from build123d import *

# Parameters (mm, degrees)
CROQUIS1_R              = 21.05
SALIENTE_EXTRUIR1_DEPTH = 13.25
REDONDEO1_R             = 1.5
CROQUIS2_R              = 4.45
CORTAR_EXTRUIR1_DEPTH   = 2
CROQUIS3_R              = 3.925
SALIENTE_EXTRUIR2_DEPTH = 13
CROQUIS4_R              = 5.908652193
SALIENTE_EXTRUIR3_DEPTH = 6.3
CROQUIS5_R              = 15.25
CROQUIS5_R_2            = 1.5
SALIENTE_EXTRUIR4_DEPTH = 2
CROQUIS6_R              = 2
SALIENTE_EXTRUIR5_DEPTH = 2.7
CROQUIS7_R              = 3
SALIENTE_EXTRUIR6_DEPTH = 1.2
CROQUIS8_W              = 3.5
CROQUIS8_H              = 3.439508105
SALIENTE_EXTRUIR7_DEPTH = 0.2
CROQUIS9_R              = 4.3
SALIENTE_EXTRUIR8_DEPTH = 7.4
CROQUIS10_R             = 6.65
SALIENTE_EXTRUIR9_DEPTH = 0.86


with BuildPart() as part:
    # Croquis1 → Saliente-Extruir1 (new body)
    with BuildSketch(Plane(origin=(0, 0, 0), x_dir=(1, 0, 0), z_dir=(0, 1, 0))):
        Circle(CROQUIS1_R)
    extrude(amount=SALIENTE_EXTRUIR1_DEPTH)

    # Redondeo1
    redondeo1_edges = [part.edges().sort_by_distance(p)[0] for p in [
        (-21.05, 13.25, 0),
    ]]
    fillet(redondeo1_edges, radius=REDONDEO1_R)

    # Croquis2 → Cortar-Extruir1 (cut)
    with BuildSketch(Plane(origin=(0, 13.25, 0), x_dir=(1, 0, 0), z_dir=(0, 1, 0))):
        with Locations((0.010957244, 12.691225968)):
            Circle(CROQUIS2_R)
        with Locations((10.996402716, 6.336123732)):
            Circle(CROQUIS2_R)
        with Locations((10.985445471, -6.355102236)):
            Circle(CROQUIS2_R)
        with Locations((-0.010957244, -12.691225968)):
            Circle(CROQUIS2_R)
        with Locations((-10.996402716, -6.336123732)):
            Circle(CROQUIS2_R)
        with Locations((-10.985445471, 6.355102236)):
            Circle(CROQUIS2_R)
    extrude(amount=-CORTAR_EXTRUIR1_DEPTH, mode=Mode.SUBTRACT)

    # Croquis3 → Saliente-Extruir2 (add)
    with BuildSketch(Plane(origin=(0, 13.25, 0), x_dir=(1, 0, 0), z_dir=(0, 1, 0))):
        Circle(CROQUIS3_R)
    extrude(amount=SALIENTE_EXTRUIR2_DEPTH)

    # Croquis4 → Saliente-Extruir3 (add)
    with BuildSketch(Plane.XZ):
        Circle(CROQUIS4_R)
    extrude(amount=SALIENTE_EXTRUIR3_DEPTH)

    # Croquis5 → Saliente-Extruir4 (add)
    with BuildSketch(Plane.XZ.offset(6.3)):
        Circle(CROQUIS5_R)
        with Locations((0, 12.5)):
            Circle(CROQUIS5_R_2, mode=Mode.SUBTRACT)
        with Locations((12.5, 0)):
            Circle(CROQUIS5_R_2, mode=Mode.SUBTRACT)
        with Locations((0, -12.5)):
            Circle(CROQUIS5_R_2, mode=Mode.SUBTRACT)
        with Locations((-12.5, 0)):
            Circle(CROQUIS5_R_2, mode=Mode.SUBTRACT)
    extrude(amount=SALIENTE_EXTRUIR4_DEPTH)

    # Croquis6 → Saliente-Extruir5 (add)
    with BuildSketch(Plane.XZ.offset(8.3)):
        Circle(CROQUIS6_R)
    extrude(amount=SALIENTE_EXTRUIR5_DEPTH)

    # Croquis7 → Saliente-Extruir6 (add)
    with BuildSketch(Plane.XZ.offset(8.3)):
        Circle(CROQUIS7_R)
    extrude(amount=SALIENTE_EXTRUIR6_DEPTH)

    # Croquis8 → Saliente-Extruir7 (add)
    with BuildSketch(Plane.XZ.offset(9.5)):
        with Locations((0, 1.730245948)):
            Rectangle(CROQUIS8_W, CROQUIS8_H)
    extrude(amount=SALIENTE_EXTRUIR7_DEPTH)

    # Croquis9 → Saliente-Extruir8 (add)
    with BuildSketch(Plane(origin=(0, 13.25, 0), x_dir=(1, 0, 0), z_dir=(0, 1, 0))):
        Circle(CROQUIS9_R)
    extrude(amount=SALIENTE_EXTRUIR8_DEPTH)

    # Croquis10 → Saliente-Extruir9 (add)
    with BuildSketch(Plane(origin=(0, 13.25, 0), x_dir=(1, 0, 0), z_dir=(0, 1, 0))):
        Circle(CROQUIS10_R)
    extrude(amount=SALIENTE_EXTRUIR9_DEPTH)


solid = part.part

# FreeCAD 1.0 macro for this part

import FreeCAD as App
import Part
import Sketcher
Q = App.Units.Quantity


def edges_at(feature, points):
    """Names of the edges that pass closest to the given points."""
    edges = feature.Shape.Edges
    near = lambda p: min(range(len(edges)), key=lambda i: edges[i].distToShape(Part.Vertex(*p))[0])
    return sorted({f"Edge{near(p) + 1}" for p in points})


def add_polygon(sketch, points):
    """Adds a closed chain of lines whose ends are joined by coincident constraints."""
    first, n = sketch.GeometryCount, len(points)
    for a, b in zip(points, points[1:] + points[:1]):
        sketch.addGeometry(Part.LineSegment(App.Vector(*a, 0), App.Vector(*b, 0)), False)
    for i in range(n):
        sketch.addConstraint(Sketcher.Constraint("Coincident", first + i, 2, first + (i + 1) % n, 1))

doc = App.newDocument("Part")
body = doc.addObject("PartDesign::Body", "Body")

# Sketch on XZ plane
sketch1 = body.newObject("Sketcher::SketchObject", "Sketch")
sketch1.AttachmentSupport = (doc.getObject("XZ_Plane"), [""])
sketch1.MapMode = "FlatFace"
sketch1.addGeometry(Part.Circle(App.Vector(0, 0, 0), App.Vector(0, 0, 1), 21), False)
sketch1.addConstraint([
    Sketcher.Constraint("Coincident", 0, 3, -1, 1),
    Sketcher.Constraint("Diameter", 0, Q("42.1 mm")),
])
pad1 = body.newObject("PartDesign::Pad", "Pad")
pad1.Profile = sketch1
pad1.Length = 13.25
pad1.Reversed = True
doc.recompute()

fillet = body.newObject("PartDesign::Fillet", "Fillet")
fillet.Base = (pad1, edges_at(pad1, [(-21.05, 13.25, 0)]))
fillet.Radius = 1.5

# Sketch on XZ plane
sketch2 = body.newObject("Sketcher::SketchObject", "Sketch001")
sketch2.AttachmentSupport = (doc.getObject("XZ_Plane"), [""])
sketch2.MapMode = "FlatFace"
sketch2.AttachmentOffset = App.Placement(App.Vector(0, 0, -13.25), App.Rotation())
sketch2.addGeometry([
    Part.Circle(App.Vector(0, -12.7, 0), App.Vector(0, 0, 1), 4.5),  # 0
    Part.Circle(App.Vector(11, -6.3, 0), App.Vector(0, 0, 1), 4.5),  # 1
    Part.Circle(App.Vector(11, 6.4, 0), App.Vector(0, 0, 1), 4.5),  # 2
    Part.Circle(App.Vector(0, 12.7, 0), App.Vector(0, 0, 1), 4.5),  # 3
    Part.Circle(App.Vector(-11, 6.3, 0), App.Vector(0, 0, 1), 4.5),  # 4
    Part.Circle(App.Vector(-11, -6.4, 0), App.Vector(0, 0, 1), 4.5),  # 5
], False)
sketch2.addConstraint([
    Sketcher.Constraint("Equal", 0, 1),
    Sketcher.Constraint("Equal", 1, 2),
    Sketcher.Constraint("Equal", 2, 3),
    Sketcher.Constraint("Equal", 3, 4),
    Sketcher.Constraint("Equal", 4, 5),
    Sketcher.Constraint("Symmetric", 0, 3, 3, 3, -1, 1),
    Sketcher.Constraint("Symmetric", 1, 3, 4, 3, -1, 1),
    Sketcher.Constraint("Symmetric", 2, 3, 5, 3, -1, 1),
    Sketcher.Constraint("Diameter", 0, Q("8.9 mm")),
    Sketcher.Constraint("DistanceX", 0, 3, 2, 3, Q("10.974488 mm")),
    Sketcher.Constraint("DistanceY", 0, 3, 2, 3, Q("19.046328 mm")),
    Sketcher.Constraint("DistanceX", 3, 3, 1, 3, Q("11.00736 mm")),
    Sketcher.Constraint("DistanceY", 1, 3, 3, 3, Q("19.02735 mm")),
    Sketcher.Constraint("DistanceY", 0, 3, 3, 3, Q("25.382452 mm")),
    Sketcher.Constraint("DistanceX", 5, 3, 2, 3, Q("21.970891 mm")),
])
pocket1 = body.newObject("PartDesign::Pocket", "Pocket")
pocket1.Profile = sketch2
pocket1.Length = 2
pocket1.Reversed = True

# Sketch on XZ plane
sketch3 = body.newObject("Sketcher::SketchObject", "Sketch002")
sketch3.AttachmentSupport = (doc.getObject("XZ_Plane"), [""])
sketch3.MapMode = "FlatFace"
sketch3.AttachmentOffset = App.Placement(App.Vector(0, 0, -13.25), App.Rotation())
sketch3.addGeometry(Part.Circle(App.Vector(0, 0, 0), App.Vector(0, 0, 1), 3.9), False)
sketch3.addConstraint([
    Sketcher.Constraint("Coincident", 0, 3, -1, 1),
    Sketcher.Constraint("Diameter", 0, Q("7.85 mm")),
])
pad2 = body.newObject("PartDesign::Pad", "Pad001")
pad2.Profile = sketch3
pad2.Length = 13
pad2.Reversed = True

# Sketch on XZ plane
sketch4 = body.newObject("Sketcher::SketchObject", "Sketch003")
sketch4.AttachmentSupport = (doc.getObject("XZ_Plane"), [""])
sketch4.MapMode = "FlatFace"
sketch4.addGeometry(Part.Circle(App.Vector(0, 0, 0), App.Vector(0, 0, 1), 6), False)
sketch4.addConstraint([
    Sketcher.Constraint("Coincident", 0, 3, -1, 1),
    Sketcher.Constraint("Diameter", 0, Q("11.817304 mm")),
])
pad3 = body.newObject("PartDesign::Pad", "Pad002")
pad3.Profile = sketch4
pad3.Length = 6.3

# Sketch on XZ plane
sketch5 = body.newObject("Sketcher::SketchObject", "Sketch004")
sketch5.AttachmentSupport = (doc.getObject("XZ_Plane"), [""])
sketch5.MapMode = "FlatFace"
sketch5.AttachmentOffset = App.Placement(App.Vector(0, 0, 6.3), App.Rotation())
sketch5.addGeometry([
    Part.Circle(App.Vector(0, 0, 0), App.Vector(0, 0, 1), 15.2),  # 0
    Part.Circle(App.Vector(0, -12.5, 0), App.Vector(0, 0, 1), 1.5),  # 1
    Part.Circle(App.Vector(-12.5, 0, 0), App.Vector(0, 0, 1), 1.5),  # 2
    Part.Circle(App.Vector(12.5, 0, 0), App.Vector(0, 0, 1), 1.5),  # 3
    Part.Circle(App.Vector(0, 12.5, 0), App.Vector(0, 0, 1), 1.5),  # 4
], False)
sketch5.addConstraint([
    Sketcher.Constraint("Coincident", 0, 3, -1, 1),
    Sketcher.Constraint("Equal", 1, 2),
    Sketcher.Constraint("Equal", 2, 3),
    Sketcher.Constraint("Equal", 3, 4),
    Sketcher.Constraint("Symmetric", 2, 3, 3, 3, -1, 1),
    Sketcher.Constraint("Symmetric", 1, 3, 4, 3, -1, 1),
    Sketcher.Constraint("PointOnObject", 1, 3, -2),
    Sketcher.Constraint("PointOnObject", 2, 3, -1),
    Sketcher.Constraint("Diameter", 1, Q("3 mm")),
    Sketcher.Constraint("Diameter", 0, Q("30.5 mm")),
    Sketcher.Constraint("DistanceX", 2, 3, 3, 3, Q("25 mm")),
    Sketcher.Constraint("DistanceY", 1, 3, 4, 3, Q("25 mm")),
])
pad4 = body.newObject("PartDesign::Pad", "Pad003")
pad4.Profile = sketch5
pad4.Length = 2

# Sketch on XZ plane
sketch6 = body.newObject("Sketcher::SketchObject", "Sketch005")
sketch6.AttachmentSupport = (doc.getObject("XZ_Plane"), [""])
sketch6.MapMode = "FlatFace"
sketch6.AttachmentOffset = App.Placement(App.Vector(0, 0, 8.3), App.Rotation())
sketch6.addGeometry(Part.Circle(App.Vector(0, 0, 0), App.Vector(0, 0, 1), 2), False)
sketch6.addConstraint([
    Sketcher.Constraint("Coincident", 0, 3, -1, 1),
    Sketcher.Constraint("Diameter", 0, Q("4 mm")),
])
pad5 = body.newObject("PartDesign::Pad", "Pad004")
pad5.Profile = sketch6
pad5.Length = 2.7

# Sketch on XZ plane
sketch7 = body.newObject("Sketcher::SketchObject", "Sketch006")
sketch7.AttachmentSupport = (doc.getObject("XZ_Plane"), [""])
sketch7.MapMode = "FlatFace"
sketch7.AttachmentOffset = App.Placement(App.Vector(0, 0, 8.3), App.Rotation())
sketch7.addGeometry(Part.Circle(App.Vector(0, 0, 0), App.Vector(0, 0, 1), 3), False)
sketch7.addConstraint([
    Sketcher.Constraint("Coincident", 0, 3, -1, 1),
    Sketcher.Constraint("Diameter", 0, Q("6 mm")),
])
pad6 = body.newObject("PartDesign::Pad", "Pad005")
pad6.Profile = sketch7
pad6.Length = 1.2

# Sketch on XZ plane
sketch8 = body.newObject("Sketcher::SketchObject", "Sketch007")
sketch8.AttachmentSupport = (doc.getObject("XZ_Plane"), [""])
sketch8.MapMode = "FlatFace"
sketch8.AttachmentOffset = App.Placement(App.Vector(0, 0, 9.5), App.Rotation())
add_polygon(sketch8, [(-1.8, 3.5), (-1.8, 0), (1.8, 0), (1.8, 3.5)])  # lines 0-3
sketch8.addConstraint([
    Sketcher.Constraint("Vertical", 0),
    Sketcher.Constraint("Horizontal", 1),
    Sketcher.Constraint("Vertical", 2),
    Sketcher.Constraint("Horizontal", 3),
    Sketcher.Constraint("DistanceX", 1, 1, 1, 2, Q("3.5 mm")),
    Sketcher.Constraint("DistanceX", 0, 2, -1, 1, Q("1.75 mm")),
    Sketcher.Constraint("DistanceY", -1, 1, 2, 2, Q("3.45 mm")),
    Sketcher.Constraint("DistanceY", 0, 2, 0, 1, Q("3.439508 mm")),
])
pad7 = body.newObject("PartDesign::Pad", "Pad006")
pad7.Profile = sketch8
pad7.Length = 0.2

# Sketch on XZ plane
sketch9 = body.newObject("Sketcher::SketchObject", "Sketch008")
sketch9.AttachmentSupport = (doc.getObject("XZ_Plane"), [""])
sketch9.MapMode = "FlatFace"
sketch9.AttachmentOffset = App.Placement(App.Vector(0, 0, -13.25), App.Rotation())
sketch9.addGeometry(Part.Circle(App.Vector(0, 0, 0), App.Vector(0, 0, 1), 4.3), False)
sketch9.addConstraint([
    Sketcher.Constraint("Coincident", 0, 3, -1, 1),
    Sketcher.Constraint("Diameter", 0, Q("8.6 mm")),
])
pad8 = body.newObject("PartDesign::Pad", "Pad007")
pad8.Profile = sketch9
pad8.Length = 7.4
pad8.Reversed = True

# Sketch on XZ plane
sketch10 = body.newObject("Sketcher::SketchObject", "Sketch009")
sketch10.AttachmentSupport = (doc.getObject("XZ_Plane"), [""])
sketch10.MapMode = "FlatFace"
sketch10.AttachmentOffset = App.Placement(App.Vector(0, 0, -13.25), App.Rotation())
sketch10.addGeometry(Part.Circle(App.Vector(0, 0, 0), App.Vector(0, 0, 1), 7), False)
sketch10.addConstraint([
    Sketcher.Constraint("Coincident", 0, 3, -1, 1),
    Sketcher.Constraint("Diameter", 0, Q("13.3 mm")),
])
pad9 = body.newObject("PartDesign::Pad", "Pad008")
pad9.Profile = sketch10
pad9.Length = 0.86
pad9.Reversed = True

doc.recompute()
